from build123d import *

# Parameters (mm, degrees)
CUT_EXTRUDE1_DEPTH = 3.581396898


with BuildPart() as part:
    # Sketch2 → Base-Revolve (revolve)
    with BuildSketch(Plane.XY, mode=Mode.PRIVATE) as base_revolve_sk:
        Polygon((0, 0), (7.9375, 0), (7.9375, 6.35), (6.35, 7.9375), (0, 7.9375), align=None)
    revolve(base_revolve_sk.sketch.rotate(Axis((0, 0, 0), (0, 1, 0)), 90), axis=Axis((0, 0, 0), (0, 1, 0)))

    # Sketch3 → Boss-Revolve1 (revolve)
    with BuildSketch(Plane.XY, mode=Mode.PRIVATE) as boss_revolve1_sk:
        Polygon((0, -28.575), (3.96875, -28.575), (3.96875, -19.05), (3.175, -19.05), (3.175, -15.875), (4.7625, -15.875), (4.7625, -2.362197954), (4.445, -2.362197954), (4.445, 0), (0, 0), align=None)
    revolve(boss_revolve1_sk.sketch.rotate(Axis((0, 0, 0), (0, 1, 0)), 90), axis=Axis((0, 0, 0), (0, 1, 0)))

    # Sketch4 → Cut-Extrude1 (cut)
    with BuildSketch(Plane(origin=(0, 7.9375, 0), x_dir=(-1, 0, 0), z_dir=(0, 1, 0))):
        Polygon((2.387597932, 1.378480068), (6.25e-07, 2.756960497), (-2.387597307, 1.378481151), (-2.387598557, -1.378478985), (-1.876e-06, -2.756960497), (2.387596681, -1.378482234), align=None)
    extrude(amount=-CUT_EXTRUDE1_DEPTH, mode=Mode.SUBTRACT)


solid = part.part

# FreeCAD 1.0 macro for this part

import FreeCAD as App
import Part
import Sketcher
from FreeCAD import Vector
Q = App.Units.Quantity

doc = App.newDocument("Part")
params = doc.addObject("Spreadsheet::Sheet", "Params")
for row, (alias, value) in enumerate([
    ("sketch1_width", "0.25 in"),
    ("sketch1_width2", "0.3125 in"),
    ("revolution_angle", "360 deg"),
    ("sketch2_width", "0.15625 in"),
    ("sketch2_width2", "0.03125 in"),
    ("sketch2_width3", "0.0625 in"),
    ("sketch2_width4", "0.175 in"),
    ("sketch2_height", "0.375 in"),
    ("revolution2_angle", "360 deg"),
    ("pocket1_length", "0.1409999 in"),
], start=1):
    params.set(f"A{row}", alias)
    params.set(f"B{row}", "=" + value)
    params.setAlias(f"B{row}", alias)

body = doc.addObject("PartDesign::Body", "Body")

# Sketch on XY plane
sketch1 = body.newObject("Sketcher::SketchObject", "Sketch")
sketch1.AttachmentSupport = (doc.getObject("XY_Plane"), [""])
sketch1.MapMode = "FlatFace"
sketch1.addGeometry(Part.LineSegment(Vector(0, 0, 0), Vector(7.9, 0, 0)), False)
sketch1.addGeometry(Part.LineSegment(Vector(7.9, 0, 0), Vector(7.9, 6.3, 0)), False)
sketch1.addGeometry(Part.LineSegment(Vector(7.9, 6.3, 0), Vector(6.3, 7.9, 0)), False)
sketch1.addGeometry(Part.LineSegment(Vector(6.3, 7.9, 0), Vector(0, 7.9, 0)), False)
sketch1.addGeometry(Part.LineSegment(Vector(0, 7.9, 0), Vector(0, 0, 0)), False)
sketch1.addConstraint(Sketcher.Constraint("Coincident", 0, 2, 1, 1))
sketch1.addConstraint(Sketcher.Constraint("Coincident", 1, 2, 2, 1))
sketch1.addConstraint(Sketcher.Constraint("Coincident", 2, 2, 3, 1))
sketch1.addConstraint(Sketcher.Constraint("Coincident", 3, 2, 4, 1))
sketch1.addConstraint(Sketcher.Constraint("Coincident", 4, 2, 0, 1))
sketch1.addConstraint(Sketcher.Constraint("Horizontal", 0))
sketch1.addConstraint(Sketcher.Constraint("Vertical", 1))
sketch1.addConstraint(Sketcher.Constraint("Horizontal", 3))
sketch1.addConstraint(Sketcher.Constraint("Vertical", 4))
sketch1.addConstraint(Sketcher.Constraint("Coincident", 4, 2, -1, 1))
sketch1.addConstraint(Sketcher.Constraint("Equal", 3, 1))
sketch1.addConstraint(Sketcher.Constraint("Equal", 0, 4))
sketch1.addConstraint(Sketcher.Constraint("DistanceX", 3, 2, 3, 1, Q("0.25 in")))
sketch1.addConstraint(Sketcher.Constraint("DistanceX", 0, 1, 0, 2, Q("0.3125 in")))
sketch1.setExpression("Constraints[12]", "Params.sketch1_width")
sketch1.setExpression("Constraints[13]", "Params.sketch1_width2")
revolution = body.newObject("PartDesign::Revolution", "Revolution")
revolution.Profile = sketch1
revolution.ReferenceAxis = (sketch1, ["V_Axis"])
revolution.setExpression("Angle", "Params.revolution_angle")

# Sketch on XY plane
sketch2 = body.newObject("Sketcher::SketchObject", "Sketch001")
sketch2.AttachmentSupport = (doc.getObject("XY_Plane"), [""])
sketch2.MapMode = "FlatFace"
sketch2.addGeometry(Part.LineSegment(Vector(0, -28.57, 0), Vector(3.97, -28.57, 0)), False)
sketch2.addGeometry(Part.LineSegment(Vector(3.97, -28.57, 0), Vector(3.97, -19.05, 0)), False)
sketch2.addGeometry(Part.LineSegment(Vector(3.97, -19.05, 0), Vector(3.17, -19.05, 0)), False)
sketch2.addGeometry(Part.LineSegment(Vector(3.17, -19.05, 0), Vector(3.17, -15.88, 0)), False)
sketch2.addGeometry(Part.LineSegment(Vector(3.17, -15.88, 0), Vector(4.76, -15.88, 0)), False)
sketch2.addGeometry(Part.LineSegment(Vector(4.76, -15.88, 0), Vector(4.76, -2.36, 0)), False)
sketch2.addGeometry(Part.LineSegment(Vector(4.76, -2.36, 0), Vector(4.45, -2.36, 0)), False)
sketch2.addGeometry(Part.LineSegment(Vector(4.45, -2.36, 0), Vector(4.45, 0, 0)), False)
sketch2.addGeometry(Part.LineSegment(Vector(4.45, 0, 0), Vector(0, 0, 0)), False)
sketch2.addGeometry(Part.LineSegment(Vector(0, 0, 0), Vector(0, -28.57, 0)), False)
sketch2.addConstraint(Sketcher.Constraint("Coincident", 0, 2, 1, 1))
sketch2.addConstraint(Sketcher.Constraint("Coincident", 1, 2, 2, 1))
sketch2.addConstraint(Sketcher.Constraint("Coincident", 2, 2, 3, 1))
sketch2.addConstraint(Sketcher.Constraint("Coincident", 3, 2, 4, 1))
sketch2.addConstraint(Sketcher.Constraint("Coincident", 4, 2, 5, 1))
sketch2.addConstraint(Sketcher.Constraint("Coincident", 5, 2, 6, 1))
sketch2.addConstraint(Sketcher.Constraint("Coincident", 6, 2, 7, 1))
sketch2.addConstraint(Sketcher.Constraint("Coincident", 7, 2, 8, 1))
sketch2.addConstraint(Sketcher.Constraint("Coincident", 8, 2, 9, 1))
sketch2.addConstraint(Sketcher.Constraint("Coincident", 9, 2, 0, 1))
sketch2.addConstraint(Sketcher.Constraint("Horizontal", 0))
sketch2.addConstraint(Sketcher.Constraint("Vertical", 1))
sketch2.addConstraint(Sketcher.Constraint("Horizontal", 2))
sketch2.addConstraint(Sketcher.Constraint("Vertical", 3))
sketch2.addConstraint(Sketcher.Constraint("Horizontal", 4))
sketch2.addConstraint(Sketcher.Constraint("Vertical", 5))
sketch2.addConstraint(Sketcher.Constraint("Horizontal", 6))
sketch2.addConstraint(Sketcher.Constraint("Vertical", 7))
sketch2.addConstraint(Sketcher.Constraint("Horizontal", 8))
sketch2.addConstraint(Sketcher.Constraint("Vertical", 9))
sketch2.addConstraint(Sketcher.Constraint("Coincident", 8, 2, -1, 1))
sketch2.addConstraint(Sketcher.Constraint("DistanceY", 0, 2, 3, 2, Q("0.5 in")))
sketch2.addConstraint(Sketcher.Constraint("DistanceX", 0, 1, 0, 2, Q("0.15625 in")))
sketch2.addConstraint(Sketcher.Constraint("DistanceX", 2, 2, 2, 1, Q("0.03125 in")))
sketch2.addConstraint(Sketcher.Constraint("DistanceX", 4, 1, 4, 2, Q("0.0625 in")))
sketch2.addConstraint(Sketcher.Constraint("DistanceX", 8, 2, 8, 1, Q("0.175 in")))
sketch2.addConstraint(Sketcher.Constraint("DistanceY", 1, 1, 1, 2, Q("0.375 in")))
sketch2.addConstraint(Sketcher.Constraint("DistanceY", 5, 1, 5, 2, Q("0.5320001 in")))
sketch2.addConstraint(Sketcher.Constraint("DistanceY", 7, 1, 7, 2, Q("0.0929999 in")))
sketch2.setExpression("Constraints[22]", "Params.sketch2_width")
sketch2.setExpression("Constraints[23]", "Params.sketch2_width2")
sketch2.setExpression("Constraints[24]", "Params.sketch2_width3")
sketch2.setExpression("Constraints[25]", "Params.sketch2_width4")
sketch2.setExpression("Constraints[26]", "Params.sketch2_height")
revolution2 = body.newObject("PartDesign::Revolution", "Revolution001")
revolution2.Profile = sketch2
revolution2.ReferenceAxis = (sketch2, ["V_Axis"])
revolution2.setExpression("Angle", "Params.revolution2_angle")

# Sketch on XZ plane
sketch3 = body.newObject("Sketcher::SketchObject", "Sketch002")
sketch3.AttachmentSupport = (doc.getObject("XZ_Plane"), [""])
sketch3.MapMode = "FlatFace"
sketch3.AttachmentOffset = App.Placement(Vector(0, 0, -0.3125 * 25.4), App.Rotation())
sketch3.addGeometry(Part.LineSegment(Vector(-2.4, 1.4, 0), Vector(0, 2.8, 0)), False)
sketch3.addGeometry(Part.LineSegment(Vector(0, 2.8, 0), Vector(2.4, 1.4, 0)), False)
sketch3.addGeometry(Part.LineSegment(Vector(2.4, 1.4, 0), Vector(2.4, -1.4, 0)), False)
sketch3.addGeometry(Part.LineSegment(Vector(2.4, -1.4, 0), Vector(0, -2.8, 0)), False)
sketch3.addGeometry(Part.LineSegment(Vector(0, -2.8, 0), Vector(-2.4, -1.4, 0)), False)
sketch3.addGeometry(Part.LineSegment(Vector(-2.4, -1.4, 0), Vector(-2.4, 1.4, 0)), False)
sketch3.addConstraint(Sketcher.Constraint("Coincident", 0, 2, 1, 1))
sketch3.addConstraint(Sketcher.Constraint("Coincident", 1, 2, 2, 1))
sketch3.addConstraint(Sketcher.Constraint("Coincident", 2, 2, 3, 1))
sketch3.addConstraint(Sketcher.Constraint("Coincident", 3, 2, 4, 1))
sketch3.addConstraint(Sketcher.Constraint("Coincident", 4, 2, 5, 1))
sketch3.addConstraint(Sketcher.Constraint("Coincident", 5, 2, 0, 1))
sketch3.addConstraint(Sketcher.Constraint("Vertical", 2))
sketch3.addConstraint(Sketcher.Constraint("Vertical", 5))
sketch3.addConstraint(Sketcher.Constraint("Symmetric", 0, 2, 3, 2, -1, 1))
sketch3.addConstraint(Sketcher.Constraint("Symmetric", 1, 2, 4, 2, -1, 1))
sketch3.addConstraint(Sketcher.Constraint("PointOnObject", 0, 2, -2))
sketch3.addConstraint(Sketcher.Constraint("Parallel", 0, 3))
sketch3.addConstraint(Sketcher.Constraint("Horizontal", 1, 2, 5, 2))
sketch3.addConstraint(Sketcher.Constraint("Angle", 0, Q("30.000009 deg")))
sketch3.addConstraint(Sketcher.Constraint("DistanceX", -1, 1, 1, 2, Q("0.0939999 in")))
sketch3.addConstraint(Sketcher.Constraint("DistanceY", 2, 2, 2, 1, 2.75696))
pocket1 = body.newObject("PartDesign::Pocket", "Pocket")
pocket1.Profile = sketch3
pocket1.setExpression("Length", "Params.pocket1_length")
pocket1.Reversed = True

doc.recompute()
